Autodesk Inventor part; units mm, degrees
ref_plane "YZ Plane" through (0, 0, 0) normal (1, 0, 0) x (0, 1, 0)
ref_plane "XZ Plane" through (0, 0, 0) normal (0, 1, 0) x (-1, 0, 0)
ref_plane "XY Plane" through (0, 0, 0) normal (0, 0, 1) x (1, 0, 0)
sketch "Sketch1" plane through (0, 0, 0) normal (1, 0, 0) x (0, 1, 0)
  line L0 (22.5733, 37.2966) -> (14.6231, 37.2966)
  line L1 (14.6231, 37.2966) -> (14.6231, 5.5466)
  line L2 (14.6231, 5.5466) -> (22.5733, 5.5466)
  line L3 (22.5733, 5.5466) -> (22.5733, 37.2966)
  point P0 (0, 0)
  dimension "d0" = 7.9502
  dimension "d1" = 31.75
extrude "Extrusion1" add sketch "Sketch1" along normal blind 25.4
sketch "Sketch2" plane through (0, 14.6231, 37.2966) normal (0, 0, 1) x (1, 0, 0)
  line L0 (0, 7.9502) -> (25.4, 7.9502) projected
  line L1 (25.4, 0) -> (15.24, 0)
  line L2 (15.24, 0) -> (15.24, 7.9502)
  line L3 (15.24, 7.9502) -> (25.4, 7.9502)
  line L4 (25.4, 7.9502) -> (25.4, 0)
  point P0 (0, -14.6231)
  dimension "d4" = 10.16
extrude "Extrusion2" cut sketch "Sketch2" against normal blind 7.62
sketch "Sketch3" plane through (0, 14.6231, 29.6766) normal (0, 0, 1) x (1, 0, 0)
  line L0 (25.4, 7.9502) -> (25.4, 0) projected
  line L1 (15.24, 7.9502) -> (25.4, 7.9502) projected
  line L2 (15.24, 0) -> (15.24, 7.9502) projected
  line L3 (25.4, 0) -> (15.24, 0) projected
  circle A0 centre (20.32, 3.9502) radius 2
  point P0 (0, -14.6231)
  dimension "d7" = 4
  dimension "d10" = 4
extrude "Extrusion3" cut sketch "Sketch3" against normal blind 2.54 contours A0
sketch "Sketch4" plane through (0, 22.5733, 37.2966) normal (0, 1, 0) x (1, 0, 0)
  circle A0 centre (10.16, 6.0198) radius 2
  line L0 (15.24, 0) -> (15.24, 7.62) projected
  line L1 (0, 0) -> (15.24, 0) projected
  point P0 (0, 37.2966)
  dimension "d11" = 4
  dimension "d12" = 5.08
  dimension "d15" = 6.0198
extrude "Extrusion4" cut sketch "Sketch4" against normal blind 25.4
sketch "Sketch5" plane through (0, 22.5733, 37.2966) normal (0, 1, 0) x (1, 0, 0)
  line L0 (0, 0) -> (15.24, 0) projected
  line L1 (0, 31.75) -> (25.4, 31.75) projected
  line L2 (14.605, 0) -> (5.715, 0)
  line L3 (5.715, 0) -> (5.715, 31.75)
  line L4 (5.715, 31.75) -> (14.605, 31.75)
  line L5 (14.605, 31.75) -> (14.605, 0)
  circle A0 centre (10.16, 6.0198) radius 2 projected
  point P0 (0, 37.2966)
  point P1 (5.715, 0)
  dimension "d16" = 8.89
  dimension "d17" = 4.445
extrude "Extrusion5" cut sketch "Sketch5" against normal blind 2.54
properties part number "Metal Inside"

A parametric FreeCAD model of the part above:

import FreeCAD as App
import Part
import Sketcher
Q = App.Units.Quantity

doc = App.newDocument("Part")
body = doc.addObject("PartDesign::Body", "Body")

# Sketch on YZ plane
sketch1 = body.newObject("Sketcher::SketchObject", "Sketch")
sketch1.AttachmentSupport = (doc.getObject("YZ_Plane"), [""])
sketch1.MapMode = "FlatFace"
sketch1.addGeometry([
    Part.LineSegment(App.Vector(23, 6, 0), App.Vector(23, 37, 0)),
    Part.LineSegment(App.Vector(23, 37, 0), App.Vector(15, 37, 0)),
    Part.LineSegment(App.Vector(15, 37, 0), App.Vector(15, 6, 0)),
    Part.LineSegment(App.Vector(15, 6, 0), App.Vector(23, 6, 0)),
], False)
sketch1.addConstraint([
    Sketcher.Constraint("Coincident", 0, 2, 1, 1),
    Sketcher.Constraint("Coincident", 1, 2, 2, 1),
    Sketcher.Constraint("Coincident", 2, 2, 3, 1),
    Sketcher.Constraint("Coincident", 3, 2, 0, 1),
    Sketcher.Constraint("Vertical", 0),
    Sketcher.Constraint("Horizontal", 1),
    Sketcher.Constraint("Vertical", 2),
    Sketcher.Constraint("Horizontal", 3),
    Sketcher.Constraint("DistanceY", 0, 1, 0, 2, Q("1.25 in")),
    Sketcher.Constraint("DistanceX", 1, 2, 1, 1, Q("0.313 in")),
    Sketcher.Constraint("DistanceX", -1, 1, 0, 2, 22.5733),
    Sketcher.Constraint("DistanceY", -1, 1, 0, 2, 37.2966),
])
pad1 = body.newObject("PartDesign::Pad", "Pad")
pad1.Profile = sketch1
pad1.Length = Q("1 in")

# Sketch on XY plane
sketch2 = body.newObject("Sketcher::SketchObject", "Sketch001")
sketch2.AttachmentSupport = (doc.getObject("XY_Plane"), [""])
sketch2.MapMode = "FlatFace"
sketch2.AttachmentOffset = App.Placement(App.Vector(0, 0, 37.2966), App.Rotation())
sketch2.addGeometry([
    Part.LineSegment(App.Vector(25, 23, 0), App.Vector(15, 23, 0)),
    Part.LineSegment(App.Vector(15, 23, 0), App.Vector(15, 15, 0)),
    Part.LineSegment(App.Vector(15, 15, 0), App.Vector(25, 15, 0)),
    Part.LineSegment(App.Vector(25, 15, 0), App.Vector(25, 23, 0)),
], False)
sketch2.addConstraint([
    Sketcher.Constraint("Coincident", 0, 2, 1, 1),
    Sketcher.Constraint("Coincident", 1, 2, 2, 1),
    Sketcher.Constraint("Coincident", 2, 2, 3, 1),
    Sketcher.Constraint("Coincident", 3, 2, 0, 1),
    Sketcher.Constraint("Horizontal", 0),
    Sketcher.Constraint("Vertical", 1),
    Sketcher.Constraint("Horizontal", 2),
    Sketcher.Constraint("Vertical", 3),
    Sketcher.Constraint("DistanceX", 0, 2, 0, 1, Q("0.4 in")),
    Sketcher.Constraint("DistanceX", -1, 1, 2, 2, Q("1 in")),
    Sketcher.Constraint("DistanceY", 1, 2, 1, 1, Q("0.313 in")),
    Sketcher.Constraint("DistanceY", -1, 1, 0, 2, 22.5733),
])
pocket1 = body.newObject("PartDesign::Pocket", "Pocket")
pocket1.Profile = sketch2
pocket1.Length = Q("0.3 in")

# Sketch on XY plane
sketch3 = body.newObject("Sketcher::SketchObject", "Sketch002")
sketch3.AttachmentSupport = (doc.getObject("XY_Plane"), [""])
sketch3.MapMode = "FlatFace"
sketch3.AttachmentOffset = App.Placement(App.Vector(0, 0, 29.6766), App.Rotation())
sketch3.addGeometry(Part.Circle(App.Vector(20.3, 18.6, 0), App.Vector(0, 0, 1), 2), False)
sketch3.addConstraint([
    Sketcher.Constraint("Diameter", 0, 4.0),
    Sketcher.Constraint("DistanceX", -1, 1, 0, 3, Q("0.8 in")),
    Sketcher.Constraint("DistanceY", -1, 1, 0, 3, 18.5733),
])
pocket2 = body.newObject("PartDesign::Pocket", "Pocket001")
pocket2.Profile = sketch3
pocket2.Length = Q("0.1 in")

# Sketch on XZ plane
sketch4 = body.newObject("Sketcher::SketchObject", "Sketch003")
sketch4.AttachmentSupport = (doc.getObject("XZ_Plane"), [""])
sketch4.MapMode = "FlatFace"
sketch4.AttachmentOffset = App.Placement(App.Vector(0, 0, -22.5733), App.Rotation())
sketch4.addGeometry(Part.Circle(App.Vector(10.2, 31.3, 0), App.Vector(0, 0, 1), 2), False)
sketch4.addConstraint([
    Sketcher.Constraint("Diameter", 0, 4.0),
    Sketcher.Constraint("DistanceX", -1, 1, 0, 3, Q("0.4 in")),
    Sketcher.Constraint("DistanceY", -1, 1, 0, 3, 31.2768),
])
pocket3 = body.newObject("PartDesign::Pocket", "Pocket002")
pocket3.Profile = sketch4
pocket3.Length = Q("1 in")
pocket3.Reversed = True

# Sketch on XZ plane
sketch5 = body.newObject("Sketcher::SketchObject", "Sketch004")
sketch5.AttachmentSupport = (doc.getObject("XZ_Plane"), [""])
sketch5.MapMode = "FlatFace"
sketch5.AttachmentOffset = App.Placement(App.Vector(0, 0, -22.5733), App.Rotation())
sketch5.addGeometry([
    Part.LineSegment(App.Vector(5.7, 5.5, 0), App.Vector(5.7, 37.3, 0)),  # 0
    Part.LineSegment(App.Vector(5.7, 37.3, 0), App.Vector(14.6, 37.3, 0)),  # 1
    Part.LineSegment(App.Vector(14.6, 37.3, 0), App.Vector(14.6, 5.5, 0)),  # 2
    Part.LineSegment(App.Vector(14.6, 5.5, 0), App.Vector(5.7, 5.5, 0)),  # 3
    Part.Circle(App.Vector(10.2, 31.3, 0), App.Vector(0, 0, 1), 2),  # 4
], False)
sketch5.addConstraint([
    Sketcher.Constraint("Coincident", 0, 2, 1, 1),
    Sketcher.Constraint("Coincident", 1, 2, 2, 1),
    Sketcher.Constraint("Coincident", 2, 2, 3, 1),
    Sketcher.Constraint("Coincident", 3, 2, 0, 1),
    Sketcher.Constraint("Vertical", 0),
    Sketcher.Constraint("Horizontal", 1),
    Sketcher.Constraint("Vertical", 2),
    Sketcher.Constraint("Horizontal", 3),
    Sketcher.Constraint("DistanceX", 1, 1, 1, 2, Q("0.35 in")),
    Sketcher.Constraint("DistanceX", 0, 2, 4, 3, Q("0.175 in")),
    Sketcher.Constraint("DistanceY", 0, 1, 0, 2, Q("1.25 in")),
    Sketcher.Constraint("DistanceX", -1, 1, 4, 3, Q("0.4 in")),
    Sketcher.Constraint("Diameter", 4, 4.0),
    Sketcher.Constraint("DistanceY", 4, 3, 0, 2, Q("0.237 in")),
    Sketcher.Constraint("DistanceY", -1, 1, 4, 3, 31.2768),
])
pocket4 = body.newObject("PartDesign::Pocket", "Pocket003")
pocket4.Profile = sketch5
pocket4.Length = Q("0.1 in")
pocket4.Reversed = True

doc.recompute()
